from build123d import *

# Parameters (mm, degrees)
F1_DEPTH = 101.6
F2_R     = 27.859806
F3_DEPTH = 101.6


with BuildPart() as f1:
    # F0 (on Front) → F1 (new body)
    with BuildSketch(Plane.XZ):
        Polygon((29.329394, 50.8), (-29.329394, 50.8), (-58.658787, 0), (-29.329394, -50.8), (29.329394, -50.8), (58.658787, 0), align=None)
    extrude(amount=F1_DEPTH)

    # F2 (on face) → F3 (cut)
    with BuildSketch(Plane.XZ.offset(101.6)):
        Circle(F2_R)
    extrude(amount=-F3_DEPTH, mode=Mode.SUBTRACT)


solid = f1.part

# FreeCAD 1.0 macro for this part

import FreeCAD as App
import Part
import Sketcher
from FreeCAD import Vector
Q = App.Units.Quantity

doc = App.newDocument("Part")
params = doc.addObject("Spreadsheet::Sheet", "Params")
for row, (alias, value) in enumerate([
    ("pad1_length", "4 in"),
    ("pocket1_length", "4 in"),
], start=1):
    params.set(f"A{row}", alias)
    params.set(f"B{row}", "=" + value)
    params.setAlias(f"B{row}", alias)

body = doc.addObject("PartDesign::Body", "Body")

sketch1 = body.newObject("Sketcher::SketchObject", "Sketch")
sketch1.AttachmentSupport = (doc.getObject("XZ_Plane"), [""])
sketch1.MapMode = "FlatFace"
sketch1.addGeometry([
    Part.LineSegment(Vector(29, 51, 0), Vector(-29, 51, 0)),
    Part.LineSegment(Vector(-29, 51, 0), Vector(-59, 0, 0)),
    Part.LineSegment(Vector(-59, 0, 0), Vector(-29, -51, 0)),
    Part.LineSegment(Vector(-29, -51, 0), Vector(29, -51, 0)),
    Part.LineSegment(Vector(29, -51, 0), Vector(59, 0, 0)),
    Part.LineSegment(Vector(59, 0, 0), Vector(29, 51, 0)),
], False)
sketch1.addConstraint([
    Sketcher.Constraint("Coincident", 0, 2, 1, 1),
    Sketcher.Constraint("Coincident", 1, 2, 2, 1),
    Sketcher.Constraint("Coincident", 2, 2, 3, 1),
    Sketcher.Constraint("Coincident", 3, 2, 4, 1),
    Sketcher.Constraint("Coincident", 4, 2, 5, 1),
    Sketcher.Constraint("Coincident", 5, 2, 0, 1),
    Sketcher.Constraint("Horizontal", 0),
    Sketcher.Constraint("Horizontal", 3),
    Sketcher.Constraint("Symmetric", 0, 2, 3, 2, -1, 1),
    Sketcher.Constraint("Symmetric", 1, 2, 4, 2, -1, 1),
    Sketcher.Constraint("PointOnObject", 1, 2, -1),
    Sketcher.Constraint("Parallel", 2, 5),
    Sketcher.Constraint("Vertical", 0, 2, 2, 2),
    Sketcher.Constraint("DistanceY", -1, 1, 0, 2, Q("2 in")),
    Sketcher.Constraint("Angle", 1, Q("-119.999999 deg")),
    Sketcher.Constraint("DistanceX", 0, 2, 0, 1, Q("58.658788 mm")),
])
pad1 = body.newObject("PartDesign::Pad", "Pad")
pad1.Profile = sketch1
pad1.setExpression("Length", "Params.pad1_length")

sketch2 = body.newObject("Sketcher::SketchObject", "Sketch001")
sketch2.AttachmentSupport = (doc.getObject("XZ_Plane"), [""])
sketch2.MapMode = "FlatFace"
sketch2.AttachmentOffset = App.Placement(Vector(0, 0, 4 * 25.4), App.Rotation())
sketch2.addGeometry(Part.Circle(Vector(0, 0, 0), Vector(0, 0, 1), 28), False)
sketch2.addConstraint([
    Sketcher.Constraint("Coincident", 0, 3, -1, 1),
    Sketcher.Constraint("Diameter", 0, Q("55.719612 mm")),
])
pocket1 = body.newObject("PartDesign::Pocket", "Pocket")
pocket1.Profile = sketch2
pocket1.setExpression("Length", "Params.pocket1_length")

doc.recompute()
